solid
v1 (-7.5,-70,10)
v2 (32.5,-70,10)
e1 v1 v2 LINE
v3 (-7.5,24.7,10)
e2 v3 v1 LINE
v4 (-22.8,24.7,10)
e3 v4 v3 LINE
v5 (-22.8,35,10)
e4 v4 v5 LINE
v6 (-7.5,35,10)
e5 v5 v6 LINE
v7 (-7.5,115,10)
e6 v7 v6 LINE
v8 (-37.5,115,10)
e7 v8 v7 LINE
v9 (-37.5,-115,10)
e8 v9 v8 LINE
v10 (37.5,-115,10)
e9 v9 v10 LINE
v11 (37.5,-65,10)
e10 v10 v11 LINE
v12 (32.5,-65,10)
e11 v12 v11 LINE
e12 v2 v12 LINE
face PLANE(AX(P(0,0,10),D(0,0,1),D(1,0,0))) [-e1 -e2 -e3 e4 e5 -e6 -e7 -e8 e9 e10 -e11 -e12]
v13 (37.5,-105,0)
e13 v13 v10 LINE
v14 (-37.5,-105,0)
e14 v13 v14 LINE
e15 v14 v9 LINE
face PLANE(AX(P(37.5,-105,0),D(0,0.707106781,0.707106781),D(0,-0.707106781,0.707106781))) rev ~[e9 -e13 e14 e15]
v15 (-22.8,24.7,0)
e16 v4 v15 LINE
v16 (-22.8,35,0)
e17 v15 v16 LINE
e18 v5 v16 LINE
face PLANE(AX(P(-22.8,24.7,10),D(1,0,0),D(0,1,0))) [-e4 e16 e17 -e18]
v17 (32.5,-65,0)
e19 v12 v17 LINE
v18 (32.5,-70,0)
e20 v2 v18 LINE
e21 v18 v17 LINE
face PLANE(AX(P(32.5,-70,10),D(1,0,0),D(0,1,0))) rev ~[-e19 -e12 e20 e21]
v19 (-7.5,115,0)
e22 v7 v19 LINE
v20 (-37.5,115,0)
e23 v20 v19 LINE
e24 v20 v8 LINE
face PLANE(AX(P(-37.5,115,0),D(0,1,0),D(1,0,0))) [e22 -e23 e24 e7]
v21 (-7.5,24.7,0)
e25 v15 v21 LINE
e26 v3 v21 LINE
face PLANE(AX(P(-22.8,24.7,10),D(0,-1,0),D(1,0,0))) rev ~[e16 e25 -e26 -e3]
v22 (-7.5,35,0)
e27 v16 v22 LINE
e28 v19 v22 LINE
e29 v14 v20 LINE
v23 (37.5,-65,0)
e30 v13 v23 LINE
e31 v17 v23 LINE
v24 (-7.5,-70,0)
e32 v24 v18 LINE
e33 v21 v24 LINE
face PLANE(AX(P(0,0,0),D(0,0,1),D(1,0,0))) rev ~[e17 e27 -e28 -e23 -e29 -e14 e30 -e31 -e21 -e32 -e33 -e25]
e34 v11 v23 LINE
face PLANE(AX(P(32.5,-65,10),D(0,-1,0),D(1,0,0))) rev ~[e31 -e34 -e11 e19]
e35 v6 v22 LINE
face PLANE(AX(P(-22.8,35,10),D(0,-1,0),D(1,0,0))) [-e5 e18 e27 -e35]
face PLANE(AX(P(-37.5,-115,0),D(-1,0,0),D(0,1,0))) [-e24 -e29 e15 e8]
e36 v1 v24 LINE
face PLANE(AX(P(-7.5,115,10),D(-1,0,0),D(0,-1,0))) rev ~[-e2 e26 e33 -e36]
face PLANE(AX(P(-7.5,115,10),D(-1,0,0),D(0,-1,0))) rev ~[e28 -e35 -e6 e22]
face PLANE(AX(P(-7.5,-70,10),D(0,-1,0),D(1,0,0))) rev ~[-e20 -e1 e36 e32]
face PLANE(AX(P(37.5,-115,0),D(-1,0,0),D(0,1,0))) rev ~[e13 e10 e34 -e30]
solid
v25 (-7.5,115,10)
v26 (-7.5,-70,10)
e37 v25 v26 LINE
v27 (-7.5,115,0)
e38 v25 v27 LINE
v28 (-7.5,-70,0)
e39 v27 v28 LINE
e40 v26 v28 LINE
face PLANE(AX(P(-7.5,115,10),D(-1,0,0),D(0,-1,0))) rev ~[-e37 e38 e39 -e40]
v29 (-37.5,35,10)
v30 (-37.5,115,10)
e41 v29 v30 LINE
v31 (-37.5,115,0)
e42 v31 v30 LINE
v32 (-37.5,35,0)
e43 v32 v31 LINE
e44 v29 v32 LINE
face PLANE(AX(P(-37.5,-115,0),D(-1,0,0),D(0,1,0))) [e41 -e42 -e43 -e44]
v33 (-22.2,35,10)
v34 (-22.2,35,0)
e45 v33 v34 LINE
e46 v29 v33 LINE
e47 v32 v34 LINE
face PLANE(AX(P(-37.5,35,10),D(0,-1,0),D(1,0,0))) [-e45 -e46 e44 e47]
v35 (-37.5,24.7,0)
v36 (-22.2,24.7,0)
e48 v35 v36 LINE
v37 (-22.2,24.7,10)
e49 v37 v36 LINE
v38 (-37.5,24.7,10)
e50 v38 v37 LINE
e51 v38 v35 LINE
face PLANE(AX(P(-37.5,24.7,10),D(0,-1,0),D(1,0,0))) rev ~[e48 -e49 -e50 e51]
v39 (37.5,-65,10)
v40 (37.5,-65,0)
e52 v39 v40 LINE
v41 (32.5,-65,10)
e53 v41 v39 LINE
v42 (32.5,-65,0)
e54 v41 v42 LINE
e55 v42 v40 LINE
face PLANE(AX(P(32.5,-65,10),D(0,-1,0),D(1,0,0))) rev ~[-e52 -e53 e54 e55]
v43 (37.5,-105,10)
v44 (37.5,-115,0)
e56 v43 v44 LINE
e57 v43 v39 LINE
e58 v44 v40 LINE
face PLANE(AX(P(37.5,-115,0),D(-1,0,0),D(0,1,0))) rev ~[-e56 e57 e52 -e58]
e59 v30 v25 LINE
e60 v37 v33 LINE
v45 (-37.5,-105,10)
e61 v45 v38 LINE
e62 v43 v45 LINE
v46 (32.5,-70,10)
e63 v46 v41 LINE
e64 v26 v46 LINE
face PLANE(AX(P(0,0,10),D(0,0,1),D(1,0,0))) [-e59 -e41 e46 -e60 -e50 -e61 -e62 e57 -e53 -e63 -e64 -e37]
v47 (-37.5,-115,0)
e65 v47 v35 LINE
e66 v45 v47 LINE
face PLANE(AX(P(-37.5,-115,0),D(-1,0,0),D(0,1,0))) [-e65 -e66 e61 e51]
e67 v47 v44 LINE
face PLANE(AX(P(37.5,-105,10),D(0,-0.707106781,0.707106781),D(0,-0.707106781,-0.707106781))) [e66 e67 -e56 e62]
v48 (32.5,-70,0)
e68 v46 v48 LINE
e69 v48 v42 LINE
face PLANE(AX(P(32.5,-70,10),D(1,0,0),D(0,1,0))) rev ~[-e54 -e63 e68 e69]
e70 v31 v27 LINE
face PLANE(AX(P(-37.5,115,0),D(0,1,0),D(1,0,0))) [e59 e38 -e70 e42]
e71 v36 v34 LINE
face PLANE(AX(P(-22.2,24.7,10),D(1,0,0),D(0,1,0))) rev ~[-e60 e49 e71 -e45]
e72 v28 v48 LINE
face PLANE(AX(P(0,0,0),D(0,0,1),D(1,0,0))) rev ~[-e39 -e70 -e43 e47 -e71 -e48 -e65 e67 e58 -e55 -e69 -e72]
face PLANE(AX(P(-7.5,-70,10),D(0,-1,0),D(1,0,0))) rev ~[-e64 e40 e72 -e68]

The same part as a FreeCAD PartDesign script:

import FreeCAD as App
import Part
import Sketcher

V = App.Vector
Q = App.Units.Quantity


def add_polygon(sketch, points):
    """Adds a closed chain of lines whose ends are joined by coincident constraints."""
    first, n = sketch.GeometryCount, len(points)
    for a, b in zip(points, points[1:] + points[:1]):
        sketch.addGeometry(Part.LineSegment(App.Vector(*a, 0), App.Vector(*b, 0)), False)
    for i in range(n):
        sketch.addConstraint(Sketcher.Constraint("Coincident", first + i, 2, first + (i + 1) % n, 1))

doc = App.newDocument("Part")
body = doc.addObject("PartDesign::Body", "Body")

sketch1 = body.newObject("Sketcher::SketchObject", "Sketch")
sketch1.AttachmentSupport = (doc.getObject("XY_Plane"), [""])
sketch1.MapMode = "FlatFace"
add_polygon(sketch1, [(-38, 115), (-38, -115), (38, -115), (38, 115)])
sketch1.addConstraint(Sketcher.Constraint("Vertical", 0))
sketch1.addConstraint(Sketcher.Constraint("Horizontal", 1))
sketch1.addConstraint(Sketcher.Constraint("Vertical", 2))
sketch1.addConstraint(Sketcher.Constraint("Horizontal", 3))
sketch1.addConstraint(Sketcher.Constraint("Symmetric", 0, 2, 2, 2, -1, 1))
sketch1.addConstraint(Sketcher.Constraint("DistanceX", 1, 1, 1, 2, Q("75 mm")))
sketch1.addConstraint(Sketcher.Constraint("DistanceY", 0, 2, 0, 1, Q("230 mm")))
pad1 = body.newObject("PartDesign::Pad", "Pad")
pad1.Profile = sketch1
pad1.Length = 10

sketch2 = body.newObject("Sketcher::SketchObject", "Sketch001")
sketch2.AttachmentSupport = (doc.getObject("YZ_Plane"), [""])
sketch2.MapMode = "FlatFace"
sketch2.AttachmentOffset = App.Placement(V(0, 0, 37.5), App.Rotation())
add_polygon(sketch2, [(-115, 10), (-115, 0), (-105, 10)])
sketch2.addConstraint(Sketcher.Constraint("Vertical", 0))
sketch2.addConstraint(Sketcher.Constraint("Horizontal", 2))
sketch2.addConstraint(Sketcher.Constraint("PointOnObject", 0, 2, -1))
sketch2.addConstraint(Sketcher.Constraint("Equal", 2, 0))
sketch2.addConstraint(Sketcher.Constraint("DistanceX", 2, 2, 2, 1, Q("10 mm")))
sketch2.addConstraint(Sketcher.Constraint("DistanceX", 0, 2, -1, 1, Q("115 mm")))
pocket1 = body.newObject("PartDesign::Pocket", "Pocket")
pocket1.Profile = sketch2
pocket1.Length = 75

sketch3 = body.newObject("Sketcher::SketchObject", "Sketch002")
sketch3.AttachmentSupport = (doc.getObject("XY_Plane"), [""])
sketch3.MapMode = "FlatFace"
sketch3.AttachmentOffset = App.Placement(V(0, 0, 10), App.Rotation())
add_polygon(sketch3, [(-38, 35), (-38, 25), (-22, 25), (-22, 35)])
sketch3.addConstraint(Sketcher.Constraint("Vertical", 0))
sketch3.addConstraint(Sketcher.Constraint("Horizontal", 1))
sketch3.addConstraint(Sketcher.Constraint("Vertical", 2))
sketch3.addConstraint(Sketcher.Constraint("Horizontal", 3))
sketch3.addConstraint(Sketcher.Constraint("DistanceX", 1, 1, 1, 2, Q("15.3 mm")))
sketch3.addConstraint(Sketcher.Constraint("DistanceY", 0, 2, 0, 1, Q("10.3 mm")))
sketch3.addConstraint(Sketcher.Constraint("DistanceY", -1, 1, 2, 2, Q("35 mm")))
sketch3.addConstraint(Sketcher.Constraint("DistanceX", 0, 2, -1, 1, Q("37.5 mm")))
pocket2 = body.newObject("PartDesign::Pocket", "Pocket001")
pocket2.Profile = sketch3
pocket2.Length = 10

sketch4 = body.newObject("Sketcher::SketchObject", "Sketch003")
sketch4.AttachmentSupport = (doc.getObject("XY_Plane"), [""])
sketch4.MapMode = "FlatFace"
sketch4.AttachmentOffset = App.Placement(V(0, 0, 10), App.Rotation())
add_polygon(sketch4, [(38, 115), (-8, 115), (-8, -70), (32, -70), (32, -65), (38, -65)])
sketch4.addConstraint(Sketcher.Constraint("Horizontal", 0))
sketch4.addConstraint(Sketcher.Constraint("Vertical", 1))
sketch4.addConstraint(Sketcher.Constraint("Horizontal", 2))
sketch4.addConstraint(Sketcher.Constraint("Vertical", 3))
sketch4.addConstraint(Sketcher.Constraint("Horizontal", 4))
sketch4.addConstraint(Sketcher.Constraint("Vertical", 5))
sketch4.addConstraint(Sketcher.Constraint("Equal", 4, 3))
sketch4.addConstraint(Sketcher.Constraint("DistanceX", 0, 2, 0, 1, Q("45 mm")))
sketch4.addConstraint(Sketcher.Constraint("DistanceX", 2, 1, 2, 2, Q("40 mm")))
sketch4.addConstraint(Sketcher.Constraint("DistanceY", 1, 2, 1, 1, Q("185 mm")))
sketch4.addConstraint(Sketcher.Constraint("DistanceY", -1, 1, 0, 2, Q("115 mm")))
sketch4.addConstraint(Sketcher.Constraint("DistanceX", 0, 2, -1, 1, Q("7.5 mm")))
pocket3 = body.newObject("PartDesign::Pocket", "Pocket002")
pocket3.Profile = sketch4
pocket3.Length = 10
body2 = doc.addObject("PartDesign::Body", "Body001")

sketch5 = body2.newObject("Sketcher::SketchObject", "Sketch004")
sketch5.AttachmentSupport = (doc.getObject("XY_Plane001"), [""])
sketch5.MapMode = "FlatFace"
add_polygon(sketch5, [(-38, 115), (-38, -115), (38, -115), (38, 115)])
sketch5.addConstraint(Sketcher.Constraint("Vertical", 0))
sketch5.addConstraint(Sketcher.Constraint("Horizontal", 1))
sketch5.addConstraint(Sketcher.Constraint("Vertical", 2))
sketch5.addConstraint(Sketcher.Constraint("Horizontal", 3))
sketch5.addConstraint(Sketcher.Constraint("Symmetric", 0, 2, 2, 2, -1, 1))
sketch5.addConstraint(Sketcher.Constraint("DistanceX", 1, 1, 1, 2, Q("75 mm")))
sketch5.addConstraint(Sketcher.Constraint("DistanceY", 0, 2, 0, 1, Q("230 mm")))
pad2 = body2.newObject("PartDesign::Pad", "Pad001")
pad2.Profile = sketch5
pad2.Length = 10

sketch6 = body2.newObject("Sketcher::SketchObject", "Sketch005")
sketch6.AttachmentSupport = (doc.getObject("YZ_Plane001"), [""])
sketch6.MapMode = "FlatFace"
sketch6.AttachmentOffset = App.Placement(V(0, 0, 37.5), App.Rotation())
add_polygon(sketch6, [(-115, 0), (-105, 0), (-115, 10)])
sketch6.addConstraint(Sketcher.Constraint("Horizontal", 0))
sketch6.addConstraint(Sketcher.Constraint("Vertical", 2))
sketch6.addConstraint(Sketcher.Constraint("PointOnObject", 0, 2, -1))
sketch6.addConstraint(Sketcher.Constraint("Equal", 0, 2))
sketch6.addConstraint(Sketcher.Constraint("DistanceX", 0, 1, 0, 2, Q("10 mm")))
sketch6.addConstraint(Sketcher.Constraint("DistanceX", 0, 2, -1, 1, Q("105 mm")))
pocket4 = body2.newObject("PartDesign::Pocket", "Pocket003")
pocket4.Profile = sketch6
pocket4.Length = 75

sketch7 = body2.newObject("Sketcher::SketchObject", "Sketch006")
sketch7.AttachmentSupport = (doc.getObject("XY_Plane001"), [""])
sketch7.MapMode = "FlatFace"
sketch7.AttachmentOffset = App.Placement(V(0, 0, 10), App.Rotation())
add_polygon(sketch7, [(-23, 35), (-23, 25), (-8, 25), (-8, 35)])
sketch7.addConstraint(Sketcher.Constraint("Vertical", 0))
sketch7.addConstraint(Sketcher.Constraint("Horizontal", 1))
sketch7.addConstraint(Sketcher.Constraint("Vertical", 2))
sketch7.addConstraint(Sketcher.Constraint("Horizontal", 3))
sketch7.addConstraint(Sketcher.Constraint("DistanceX", 1, 1, 1, 2, Q("15.3 mm")))
sketch7.addConstraint(Sketcher.Constraint("DistanceY", 0, 2, 0, 1, Q("10.3 mm")))
sketch7.addConstraint(Sketcher.Constraint("DistanceY", -1, 1, 2, 2, Q("35 mm")))
sketch7.addConstraint(Sketcher.Constraint("DistanceX", 0, 2, -1, 1, Q("22.8 mm")))
pocket5 = body2.newObject("PartDesign::Pocket", "Pocket004")
pocket5.Profile = sketch7
pocket5.Length = 10

sketch8 = body2.newObject("Sketcher::SketchObject", "Sketch007")
sketch8.AttachmentSupport = (doc.getObject("XY_Plane001"), [""])
sketch8.MapMode = "FlatFace"
sketch8.AttachmentOffset = App.Placement(V(0, 0, 10), App.Rotation())
add_polygon(sketch8, [(-8, 115), (-8, -70), (32, -70), (32, -65), (38, -65), (38, 115)])
sketch8.addConstraint(Sketcher.Constraint("Vertical", 0))
sketch8.addConstraint(Sketcher.Constraint("Horizontal", 1))
sketch8.addConstraint(Sketcher.Constraint("Vertical", 2))
sketch8.addConstraint(Sketcher.Constraint("Horizontal", 3))
sketch8.addConstraint(Sketcher.Constraint("Vertical", 4))
sketch8.addConstraint(Sketcher.Constraint("Horizontal", 5))
sketch8.addConstraint(Sketcher.Constraint("Equal", 3, 2))
sketch8.addConstraint(Sketcher.Constraint("DistanceX", 1, 1, 1, 2, Q("40 mm")))
sketch8.addConstraint(Sketcher.Constraint("DistanceX", 3, 1, 3, 2, Q("5 mm")))
sketch8.addConstraint(Sketcher.Constraint("DistanceY", 0, 2, 0, 1, Q("185 mm")))
sketch8.addConstraint(Sketcher.Constraint("DistanceY", 0, 2, -1, 1, Q("70 mm")))
sketch8.addConstraint(Sketcher.Constraint("DistanceX", 0, 2, -1, 1, Q("7.5 mm")))
pocket6 = body2.newObject("PartDesign::Pocket", "Pocket005")
pocket6.Profile = sketch8
pocket6.Length = 10

doc.recompute()
